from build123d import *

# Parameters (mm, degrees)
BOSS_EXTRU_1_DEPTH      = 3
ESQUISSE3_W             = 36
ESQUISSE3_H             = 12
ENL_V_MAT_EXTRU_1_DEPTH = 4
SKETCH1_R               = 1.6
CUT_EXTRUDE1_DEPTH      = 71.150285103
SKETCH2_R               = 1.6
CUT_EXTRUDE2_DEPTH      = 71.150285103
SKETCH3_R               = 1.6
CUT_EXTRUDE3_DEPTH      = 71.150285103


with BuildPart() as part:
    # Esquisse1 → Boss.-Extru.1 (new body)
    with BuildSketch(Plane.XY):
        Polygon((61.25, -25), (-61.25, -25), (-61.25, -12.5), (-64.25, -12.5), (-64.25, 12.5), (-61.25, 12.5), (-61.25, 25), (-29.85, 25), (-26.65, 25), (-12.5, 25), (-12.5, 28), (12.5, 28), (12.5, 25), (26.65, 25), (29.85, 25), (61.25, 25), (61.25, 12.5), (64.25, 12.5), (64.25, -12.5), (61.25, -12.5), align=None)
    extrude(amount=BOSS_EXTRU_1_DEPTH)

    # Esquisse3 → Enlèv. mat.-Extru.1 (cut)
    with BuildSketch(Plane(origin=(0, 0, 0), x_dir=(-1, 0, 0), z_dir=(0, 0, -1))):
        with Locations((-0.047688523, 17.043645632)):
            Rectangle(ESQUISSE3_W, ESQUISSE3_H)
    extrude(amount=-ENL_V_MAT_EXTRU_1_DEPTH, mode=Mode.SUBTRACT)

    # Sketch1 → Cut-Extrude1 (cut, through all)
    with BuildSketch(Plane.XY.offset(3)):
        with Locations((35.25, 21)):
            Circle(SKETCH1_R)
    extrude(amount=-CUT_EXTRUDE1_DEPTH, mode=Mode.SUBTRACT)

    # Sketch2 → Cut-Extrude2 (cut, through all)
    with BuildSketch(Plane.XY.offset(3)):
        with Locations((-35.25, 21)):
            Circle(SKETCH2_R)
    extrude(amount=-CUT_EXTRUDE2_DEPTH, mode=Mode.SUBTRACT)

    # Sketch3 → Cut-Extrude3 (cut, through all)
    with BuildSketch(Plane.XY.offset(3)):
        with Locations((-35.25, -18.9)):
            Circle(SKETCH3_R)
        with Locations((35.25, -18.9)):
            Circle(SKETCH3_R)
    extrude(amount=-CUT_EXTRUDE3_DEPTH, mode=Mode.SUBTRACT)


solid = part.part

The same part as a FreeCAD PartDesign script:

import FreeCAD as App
import Part
import Sketcher

V = App.Vector


def add_polygon(sketch, points):
    """Adds a closed chain of lines whose ends are joined by coincident constraints."""
    first, n = sketch.GeometryCount, len(points)
    for a, b in zip(points, points[1:] + points[:1]):
        sketch.addGeometry(Part.LineSegment(App.Vector(*a, 0), App.Vector(*b, 0)), False)
    for i in range(n):
        sketch.addConstraint(Sketcher.Constraint("Coincident", first + i, 2, first + (i + 1) % n, 1))

doc = App.newDocument("Part")
body = doc.addObject("PartDesign::Body", "Body")

sketch1 = doc.addObject("Sketcher::SketchObject", "Sketch")
body.addObject(sketch1)
sketch1.AttachmentSupport = (doc.XY_Plane, [""])
sketch1.MapMode = "FlatFace"
add_polygon(sketch1, [(-61.2, -25), (61.2, -25), (61.2, -12.5), (64.2, -12.5), (64.2, 12.5), (61.2, 12.5), (61.2, 25), (12.5, 25), (12.5, 28), (-12.5, 28), (-12.5, 25), (-61.2, 25), (-61.2, 12.5), (-64.2, 12.5), (-64.2, -12.5), (-61.2, -12.5)])
sketch1.addConstraint(Sketcher.Constraint("Horizontal", 0))
sketch1.addConstraint(Sketcher.Constraint("Vertical", 1))
sketch1.addConstraint(Sketcher.Constraint("Horizontal", 2))
sketch1.addConstraint(Sketcher.Constraint("Vertical", 3))
sketch1.addConstraint(Sketcher.Constraint("Horizontal", 4))
sketch1.addConstraint(Sketcher.Constraint("Vertical", 5))
sketch1.addConstraint(Sketcher.Constraint("Horizontal", 6))
sketch1.addConstraint(Sketcher.Constraint("Vertical", 7))
sketch1.addConstraint(Sketcher.Constraint("Horizontal", 8))
sketch1.addConstraint(Sketcher.Constraint("Vertical", 9))
sketch1.addConstraint(Sketcher.Constraint("Horizontal", 10))
sketch1.addConstraint(Sketcher.Constraint("Vertical", 11))
sketch1.addConstraint(Sketcher.Constraint("Horizontal", 12))
sketch1.addConstraint(Sketcher.Constraint("Vertical", 13))
sketch1.addConstraint(Sketcher.Constraint("Horizontal", 14))
sketch1.addConstraint(Sketcher.Constraint("Vertical", 15))
sketch1.addConstraint(Sketcher.Constraint("Symmetric", 0, 2, 10, 2, -1, 1))
sketch1.addConstraint(Sketcher.Constraint("Symmetric", 2, 2, 12, 2, -1, 1))
sketch1.addConstraint(Sketcher.Constraint("Symmetric", 4, 2, 14, 2, -1, 1))
sketch1.addConstraint(Sketcher.Constraint("Symmetric", 6, 2, 9, 2, -2))
sketch1.addConstraint(Sketcher.Constraint("Symmetric", 4, 2, 11, 2, -2))
sketch1.addConstraint(Sketcher.Constraint("Equal", 8, 3))
sketch1.addConstraint(Sketcher.Constraint("Equal", 14, 7))
sketch1.addConstraint(Sketcher.Constraint("DistanceX", 2, 1, 2, 2, 3.0))
sketch1.addConstraint(Sketcher.Constraint("DistanceX", 8, 2, 8, 1, 25.0))
sketch1.addConstraint(Sketcher.Constraint("DistanceX", 0, 1, 0, 2, 122.5))
sketch1.addConstraint(Sketcher.Constraint("DistanceY", 1, 1, 1, 2, 12.5))
pad1 = doc.addObject("PartDesign::Pad", "Pad")
body.addObject(pad1)
pad1.Profile = sketch1
pad1.Length = 3

sketch2 = doc.addObject("Sketcher::SketchObject", "Sketch001")
body.addObject(sketch2)
sketch2.AttachmentSupport = (doc.XY_Plane, [""])
sketch2.MapMode = "FlatFace"
add_polygon(sketch2, [(18, 23), (18, 11), (-18, 11), (-18, 23)])
sketch2.addConstraint(Sketcher.Constraint("Vertical", 0))
sketch2.addConstraint(Sketcher.Constraint("Horizontal", 1))
sketch2.addConstraint(Sketcher.Constraint("Vertical", 2))
sketch2.addConstraint(Sketcher.Constraint("Horizontal", 3))
sketch2.addConstraint(Sketcher.Constraint("DistanceX", 1, 2, 1, 1, 36.0))
sketch2.addConstraint(Sketcher.Constraint("DistanceY", 0, 2, 0, 1, 12.0))
sketch2.addConstraint(Sketcher.Constraint("DistanceX", -1, 1, 0, 2, 18.047689))
sketch2.addConstraint(Sketcher.Constraint("DistanceY", -1, 1, 0, 2, 11.043646))
pocket1 = doc.addObject("PartDesign::Pocket", "Pocket")
body.addObject(pocket1)
pocket1.Profile = sketch2
pocket1.Length = 4
pocket1.Reversed = True

sketch3 = doc.addObject("Sketcher::SketchObject", "Sketch002")
body.addObject(sketch3)
sketch3.AttachmentSupport = (doc.XY_Plane, [""])
sketch3.MapMode = "FlatFace"
sketch3.AttachmentOffset = App.Placement(V(0, 0, 3), App.Rotation())
sketch3.addGeometry(Part.Circle(V(35.2, 21, 0), V(0, 0, 1), 1.6), False)
sketch3.addConstraint(Sketcher.Constraint("Diameter", 0, 3.2))
sketch3.addConstraint(Sketcher.Constraint("DistanceY", -1, 1, 0, 3, 21.0))
sketch3.addConstraint(Sketcher.Constraint("DistanceX", -1, 1, 0, 3, 35.25))
pocket2 = doc.addObject("PartDesign::Pocket", "Pocket001")
body.addObject(pocket2)
pocket2.Profile = sketch3
pocket2.Type = "ThroughAll"

sketch4 = doc.addObject("Sketcher::SketchObject", "Sketch003")
body.addObject(sketch4)
sketch4.AttachmentSupport = (doc.XY_Plane, [""])
sketch4.MapMode = "FlatFace"
sketch4.AttachmentOffset = App.Placement(V(0, 0, 3), App.Rotation())
sketch4.addGeometry(Part.Circle(V(-35.2, 21, 0), V(0, 0, 1), 1.6), False)
sketch4.addConstraint(Sketcher.Constraint("Diameter", 0, 3.2))
sketch4.addConstraint(Sketcher.Constraint("DistanceY", -1, 1, 0, 3, 21.0))
sketch4.addConstraint(Sketcher.Constraint("DistanceX", 0, 3, -1, 1, 35.25))
pocket3 = doc.addObject("PartDesign::Pocket", "Pocket002")
body.addObject(pocket3)
pocket3.Profile = sketch4
pocket3.Type = "ThroughAll"

sketch5 = doc.addObject("Sketcher::SketchObject", "Sketch004")
body.addObject(sketch5)
sketch5.AttachmentSupport = (doc.XY_Plane, [""])
sketch5.MapMode = "FlatFace"
sketch5.AttachmentOffset = App.Placement(V(0, 0, 3), App.Rotation())
sketch5.addGeometry(Part.Circle(V(-35.2, -18.9, 0), V(0, 0, 1), 1.6), False)
sketch5.addGeometry(Part.Circle(V(35.2, -18.9, 0), V(0, 0, 1), 1.6), False)
sketch5.addConstraint(Sketcher.Constraint("Equal", 0, 1))
sketch5.addConstraint(Sketcher.Constraint("Symmetric", 0, 3, 1, 3, -2))
sketch5.addConstraint(Sketcher.Constraint("Diameter", 0, 3.2))
sketch5.addConstraint(Sketcher.Constraint("DistanceY", 0, 3, -1, 1, 18.9))
sketch5.addConstraint(Sketcher.Constraint("DistanceX", 0, 3, 1, 3, 70.5))
pocket4 = doc.addObject("PartDesign::Pocket", "Pocket003")
body.addObject(pocket4)
pocket4.Profile = sketch5
pocket4.Type = "ThroughAll"

doc.recompute()
